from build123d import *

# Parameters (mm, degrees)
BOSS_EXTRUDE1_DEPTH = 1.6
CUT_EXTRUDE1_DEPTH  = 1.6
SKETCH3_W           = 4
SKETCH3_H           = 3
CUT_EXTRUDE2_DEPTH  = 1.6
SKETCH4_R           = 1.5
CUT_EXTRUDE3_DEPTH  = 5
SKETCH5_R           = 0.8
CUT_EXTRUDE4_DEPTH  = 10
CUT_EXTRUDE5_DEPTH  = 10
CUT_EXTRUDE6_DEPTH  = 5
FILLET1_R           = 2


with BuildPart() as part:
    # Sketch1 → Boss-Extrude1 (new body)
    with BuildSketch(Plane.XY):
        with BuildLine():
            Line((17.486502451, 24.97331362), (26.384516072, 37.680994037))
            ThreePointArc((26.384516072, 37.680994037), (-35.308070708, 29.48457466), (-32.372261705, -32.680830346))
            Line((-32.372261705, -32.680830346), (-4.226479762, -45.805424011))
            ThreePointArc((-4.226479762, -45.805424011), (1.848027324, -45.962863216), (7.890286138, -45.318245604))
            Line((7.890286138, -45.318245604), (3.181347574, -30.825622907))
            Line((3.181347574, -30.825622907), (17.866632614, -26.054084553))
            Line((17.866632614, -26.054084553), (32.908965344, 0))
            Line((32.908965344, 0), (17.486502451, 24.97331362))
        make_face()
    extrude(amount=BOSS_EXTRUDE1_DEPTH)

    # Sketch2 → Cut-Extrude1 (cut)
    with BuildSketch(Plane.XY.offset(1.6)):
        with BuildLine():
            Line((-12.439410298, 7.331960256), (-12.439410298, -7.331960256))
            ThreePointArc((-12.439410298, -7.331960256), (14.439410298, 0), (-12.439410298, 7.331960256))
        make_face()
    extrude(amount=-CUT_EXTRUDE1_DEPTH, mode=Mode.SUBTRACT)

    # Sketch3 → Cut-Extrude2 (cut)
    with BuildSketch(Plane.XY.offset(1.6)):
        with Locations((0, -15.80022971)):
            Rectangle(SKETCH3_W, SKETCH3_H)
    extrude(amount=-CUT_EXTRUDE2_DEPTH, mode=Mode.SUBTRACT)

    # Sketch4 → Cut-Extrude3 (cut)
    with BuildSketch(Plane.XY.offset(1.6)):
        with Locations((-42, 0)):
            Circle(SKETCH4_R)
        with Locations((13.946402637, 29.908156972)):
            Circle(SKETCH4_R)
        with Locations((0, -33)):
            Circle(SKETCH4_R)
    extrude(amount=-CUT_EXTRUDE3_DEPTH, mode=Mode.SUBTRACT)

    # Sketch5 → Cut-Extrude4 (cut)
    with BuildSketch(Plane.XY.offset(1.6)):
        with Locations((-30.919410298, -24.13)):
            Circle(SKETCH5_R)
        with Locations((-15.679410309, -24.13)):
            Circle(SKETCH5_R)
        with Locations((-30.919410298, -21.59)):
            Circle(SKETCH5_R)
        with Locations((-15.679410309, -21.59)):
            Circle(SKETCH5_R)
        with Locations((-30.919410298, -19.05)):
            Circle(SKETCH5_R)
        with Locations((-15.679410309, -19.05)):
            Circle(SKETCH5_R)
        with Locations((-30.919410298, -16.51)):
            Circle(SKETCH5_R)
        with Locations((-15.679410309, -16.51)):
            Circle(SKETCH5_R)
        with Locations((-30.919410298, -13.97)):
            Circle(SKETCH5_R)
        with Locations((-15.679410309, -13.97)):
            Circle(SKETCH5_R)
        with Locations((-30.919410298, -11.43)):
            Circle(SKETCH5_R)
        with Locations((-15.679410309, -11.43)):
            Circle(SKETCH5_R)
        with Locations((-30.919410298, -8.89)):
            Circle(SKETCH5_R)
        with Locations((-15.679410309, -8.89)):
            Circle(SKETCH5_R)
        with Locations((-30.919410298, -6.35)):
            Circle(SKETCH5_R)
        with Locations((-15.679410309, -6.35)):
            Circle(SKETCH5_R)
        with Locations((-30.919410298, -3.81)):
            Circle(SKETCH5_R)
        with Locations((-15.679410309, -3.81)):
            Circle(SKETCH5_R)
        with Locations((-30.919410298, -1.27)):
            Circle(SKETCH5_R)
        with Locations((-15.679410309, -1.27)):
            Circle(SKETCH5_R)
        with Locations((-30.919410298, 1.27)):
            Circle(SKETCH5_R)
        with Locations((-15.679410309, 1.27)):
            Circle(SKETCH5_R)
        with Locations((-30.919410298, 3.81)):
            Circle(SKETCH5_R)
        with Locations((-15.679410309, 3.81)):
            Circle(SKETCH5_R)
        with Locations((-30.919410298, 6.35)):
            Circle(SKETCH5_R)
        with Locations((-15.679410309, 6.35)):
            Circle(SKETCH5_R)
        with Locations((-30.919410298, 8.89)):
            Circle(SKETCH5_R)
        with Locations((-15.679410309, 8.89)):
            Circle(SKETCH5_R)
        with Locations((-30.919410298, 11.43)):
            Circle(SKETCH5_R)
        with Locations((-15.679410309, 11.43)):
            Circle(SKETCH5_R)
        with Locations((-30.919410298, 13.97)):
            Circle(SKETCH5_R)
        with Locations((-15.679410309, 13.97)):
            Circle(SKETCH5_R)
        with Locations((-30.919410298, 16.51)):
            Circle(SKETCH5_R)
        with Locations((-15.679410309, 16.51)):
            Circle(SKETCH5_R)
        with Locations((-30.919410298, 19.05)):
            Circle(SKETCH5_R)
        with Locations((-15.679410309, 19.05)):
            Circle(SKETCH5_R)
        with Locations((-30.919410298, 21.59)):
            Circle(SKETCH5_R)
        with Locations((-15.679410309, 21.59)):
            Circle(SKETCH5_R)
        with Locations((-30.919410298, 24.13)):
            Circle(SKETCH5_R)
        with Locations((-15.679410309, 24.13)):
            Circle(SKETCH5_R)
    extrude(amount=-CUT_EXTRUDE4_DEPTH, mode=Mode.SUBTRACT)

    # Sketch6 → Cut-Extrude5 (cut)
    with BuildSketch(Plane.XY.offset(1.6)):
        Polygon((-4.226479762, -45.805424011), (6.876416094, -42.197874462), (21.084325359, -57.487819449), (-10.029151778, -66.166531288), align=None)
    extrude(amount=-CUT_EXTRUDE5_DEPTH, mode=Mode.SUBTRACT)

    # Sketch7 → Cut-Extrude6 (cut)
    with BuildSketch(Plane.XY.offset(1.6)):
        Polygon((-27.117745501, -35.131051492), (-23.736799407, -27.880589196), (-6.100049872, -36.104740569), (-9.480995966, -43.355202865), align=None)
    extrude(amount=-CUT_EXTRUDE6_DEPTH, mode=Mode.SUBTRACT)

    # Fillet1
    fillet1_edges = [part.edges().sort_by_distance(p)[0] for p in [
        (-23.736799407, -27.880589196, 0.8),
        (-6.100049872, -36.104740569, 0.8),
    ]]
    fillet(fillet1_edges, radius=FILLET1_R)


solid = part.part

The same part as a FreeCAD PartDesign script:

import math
import FreeCAD as App
import Part
import Sketcher
from FreeCAD import Vector
Q = App.Units.Quantity


def edges_at(feature, points):
    """Names of the edges that pass closest to the given points."""
    edges = feature.Shape.Edges
    near = lambda p: min(range(len(edges)), key=lambda i: edges[i].distToShape(Part.Vertex(*p))[0])
    return sorted({f"Edge{near(p) + 1}" for p in points})


def add_polygon(sketch, points):
    """Adds a closed chain of lines whose ends are joined by coincident constraints."""
    first, n = sketch.GeometryCount, len(points)
    for a, b in zip(points, points[1:] + points[:1]):
        sketch.addGeometry(Part.LineSegment(App.Vector(*a, 0), App.Vector(*b, 0)), False)
    for i in range(n):
        sketch.addConstraint(Sketcher.Constraint("Coincident", first + i, 2, first + (i + 1) % n, 1))

doc = App.newDocument("Part")
body = doc.addObject("PartDesign::Body", "Body")

sketch1 = body.newObject("Sketcher::SketchObject", "Sketch")
sketch1.AttachmentSupport = (doc.getObject("XY_Plane"), [""])
sketch1.MapMode = "FlatFace"
sketch1.addGeometry([
    Part.LineSegment(Vector(17, 25, 0), Vector(26, 38, 0)),
    Part.ArcOfCircle(Part.Circle(Vector(0, 0, 0), Vector(0, 0, 1), 46), math.radians(55), math.radians(225)),
    Part.LineSegment(Vector(-32, -33, 0), Vector(-4, -46, 0)),
    Part.ArcOfCircle(Part.Circle(Vector(0, 0, 0), Vector(0, 0, 1), 46), math.radians(-95.27), math.radians(-80.12)),
    Part.LineSegment(Vector(8, -45, 0), Vector(3, -31, 0)),
    Part.LineSegment(Vector(3, -31, 0), Vector(18, -26, 0)),
    Part.LineSegment(Vector(18, -26, 0), Vector(33, 0, 0)),
    Part.LineSegment(Vector(33, 0, 0), Vector(17, 25, 0)),
], False)
sketch1.addConstraint([
    Sketcher.Constraint("Coincident", 0, 2, 1, 1),
    Sketcher.Constraint("Coincident", 1, 2, 2, 1),
    Sketcher.Constraint("Coincident", 2, 2, 3, 1),
    Sketcher.Constraint("Coincident", 3, 2, 4, 1),
    Sketcher.Constraint("Coincident", 4, 2, 5, 1),
    Sketcher.Constraint("Coincident", 5, 2, 6, 1),
    Sketcher.Constraint("Coincident", 6, 2, 7, 1),
    Sketcher.Constraint("Coincident", 7, 2, 0, 1),
    Sketcher.Constraint("Coincident", 1, 3, -1, 1),
    Sketcher.Constraint("Coincident", 3, 3, -1, 1),
    Sketcher.Constraint("Equal", 1, 3),
    Sketcher.Constraint("PointOnObject", 6, 2, -1),
    Sketcher.Constraint("Perpendicular", 4, 5),
    Sketcher.Constraint("Radius", 1, Q("46 mm")),
    Sketcher.Constraint("Angle", 0, Q("55 deg")),
    Sketcher.Constraint("Angle", 2, Q("-25 deg")),
    Sketcher.Constraint("Angle", 4, Q("108 deg")),
    Sketcher.Constraint("Angle", 6, Q("60 deg")),
    Sketcher.Constraint("DistanceY", 2, 2, 4, 2, Q("14.979801 mm")),
    Sketcher.Constraint("DistanceY", 5, 2, 7, 2, Q("51.027398 mm")),
    Sketcher.Constraint("Distance", 7, Q("29.35164 mm")),
    Sketcher.Constraint("DistanceX", 1, 2, -1, 1, Q("32.372262 mm")),
    Sketcher.Constraint("DistanceY", 2, 2, 0, 2, Q("83.486418 mm")),
    Sketcher.Constraint("DistanceY", 2, 2, 3, 2, Q("0.487178 mm")),
])
pad1 = body.newObject("PartDesign::Pad", "Pad")
pad1.Profile = sketch1
pad1.Length = 1.6

sketch2 = body.newObject("Sketcher::SketchObject", "Sketch001")
sketch2.AttachmentSupport = (doc.getObject("XY_Plane"), [""])
sketch2.MapMode = "FlatFace"
sketch2.AttachmentOffset = App.Placement(Vector(0, 0, 1.6), App.Rotation())
sketch2.addGeometry([
    Part.LineSegment(Vector(-12, 7, 0), Vector(-12, -7, 0)),
    Part.ArcOfCircle(Part.Circle(Vector(0, 0, 0), Vector(0, 0, 1), 14), math.radians(-149), math.radians(149)),
], False)
sketch2.addConstraint([
    Sketcher.Constraint("Coincident", 0, 1, 1, 2),
    Sketcher.Constraint("Coincident", 1, 1, 0, 2),
    Sketcher.Constraint("Vertical", 0),
    Sketcher.Constraint("Coincident", 1, 3, -1, 1),
    Sketcher.Constraint("Radius", 1, Q("14.43941 mm")),
    Sketcher.Constraint("DistanceY", 0, 2, 0, 1, Q("14.663921 mm")),
])
pocket1 = body.newObject("PartDesign::Pocket", "Pocket")
pocket1.Profile = sketch2
pocket1.Length = 1.6

sketch3 = body.newObject("Sketcher::SketchObject", "Sketch002")
sketch3.AttachmentSupport = (doc.getObject("XY_Plane"), [""])
sketch3.MapMode = "FlatFace"
sketch3.AttachmentOffset = App.Placement(Vector(0, 0, 1.6), App.Rotation())
add_polygon(sketch3, [(-2, -14.3), (-2, -17.3), (2, -17.3), (2, -14.3)])
sketch3.addConstraint([
    Sketcher.Constraint("Vertical", 0),
    Sketcher.Constraint("Horizontal", 1),
    Sketcher.Constraint("Vertical", 2),
    Sketcher.Constraint("Horizontal", 3),
    Sketcher.Constraint("DistanceX", 1, 1, 1, 2, Q("4 mm")),
    Sketcher.Constraint("DistanceY", 0, 2, 0, 1, Q("3 mm")),
    Sketcher.Constraint("DistanceX", 0, 2, -1, 1, Q("2 mm")),
    Sketcher.Constraint("DistanceY", 0, 2, -1, 1, Q("17.30023 mm")),
])
pocket2 = body.newObject("PartDesign::Pocket", "Pocket001")
pocket2.Profile = sketch3
pocket2.Length = 1.6

sketch4 = body.newObject("Sketcher::SketchObject", "Sketch003")
sketch4.AttachmentSupport = (doc.getObject("XY_Plane"), [""])
sketch4.MapMode = "FlatFace"
sketch4.AttachmentOffset = App.Placement(Vector(0, 0, 1.6), App.Rotation())
sketch4.addGeometry([
    Part.Circle(Vector(-42, 0, 0), Vector(0, 0, 1), 1.5),
    Part.Circle(Vector(13.9, 29.9, 0), Vector(0, 0, 1), 1.5),
    Part.Circle(Vector(0, -33, 0), Vector(0, 0, 1), 1.5),
], False)
sketch4.addConstraint([
    Sketcher.Constraint("Equal", 0, 1),
    Sketcher.Constraint("Equal", 1, 2),
    Sketcher.Constraint("PointOnObject", 0, 3, -1),
    Sketcher.Constraint("PointOnObject", 2, 3, -2),
    Sketcher.Constraint("Diameter", 0, Q("3 mm")),
    Sketcher.Constraint("DistanceX", 0, 3, -1, 1, Q("42 mm")),
    Sketcher.Constraint("DistanceY", 2, 3, -1, 1, Q("33 mm")),
    Sketcher.Constraint("DistanceX", -1, 1, 1, 3, Q("13.946403 mm")),
    Sketcher.Constraint("DistanceY", -1, 1, 1, 3, Q("29.908157 mm")),
])
pocket3 = body.newObject("PartDesign::Pocket", "Pocket002")
pocket3.Profile = sketch4
pocket3.Length = 5

sketch5 = body.newObject("Sketcher::SketchObject", "Sketch004")
sketch5.AttachmentSupport = (doc.getObject("XY_Plane"), [""])
sketch5.MapMode = "FlatFace"
sketch5.AttachmentOffset = App.Placement(Vector(0, 0, 1.6), App.Rotation())
sketch5.addGeometry([
    Part.Circle(Vector(-30.9, -24.1, 0), Vector(0, 0, 1), 0.8),
    Part.Circle(Vector(-15.7, -24.1, 0), Vector(0, 0, 1), 0.8),
    Part.Circle(Vector(-30.9, -21.6, 0), Vector(0, 0, 1), 0.8),
    Part.Circle(Vector(-15.7, -21.6, 0), Vector(0, 0, 1), 0.8),
    Part.Circle(Vector(-30.9, -19.1, 0), Vector(0, 0, 1), 0.8),
    Part.Circle(Vector(-15.7, -19.1, 0), Vector(0, 0, 1), 0.8),
    Part.Circle(Vector(-30.9, -16.5, 0), Vector(0, 0, 1), 0.8),
    Part.Circle(Vector(-15.7, -16.5, 0), Vector(0, 0, 1), 0.8),
    Part.Circle(Vector(-30.9, -14, 0), Vector(0, 0, 1), 0.8),
    Part.Circle(Vector(-15.7, -14, 0), Vector(0, 0, 1), 0.8),
    Part.Circle(Vector(-30.9, -11.4, 0), Vector(0, 0, 1), 0.8),
    Part.Circle(Vector(-15.7, -11.4, 0), Vector(0, 0, 1), 0.8),
    Part.Circle(Vector(-30.9, -8.9, 0), Vector(0, 0, 1), 0.8),
    Part.Circle(Vector(-15.7, -8.9, 0), Vector(0, 0, 1), 0.8),
    Part.Circle(Vector(-30.9, -6.3, 0), Vector(0, 0, 1), 0.8),
    Part.Circle(Vector(-15.7, -6.3, 0), Vector(0, 0, 1), 0.8),
    Part.Circle(Vector(-30.9, -3.8, 0), Vector(0, 0, 1), 0.8),
    Part.Circle(Vector(-15.7, -3.8, 0), Vector(0, 0, 1), 0.8),
    Part.Circle(Vector(-30.9, -1.3, 0), Vector(0, 0, 1), 0.8),
    Part.Circle(Vector(-15.7, -1.3, 0), Vector(0, 0, 1), 0.8),
    Part.Circle(Vector(-30.9, 1.3, 0), Vector(0, 0, 1), 0.8),
    Part.Circle(Vector(-15.7, 1.3, 0), Vector(0, 0, 1), 0.8),
    Part.Circle(Vector(-30.9, 3.8, 0), Vector(0, 0, 1), 0.8),
    Part.Circle(Vector(-15.7, 3.8, 0), Vector(0, 0, 1), 0.8),
    Part.Circle(Vector(-30.9, 6.3, 0), Vector(0, 0, 1), 0.8),
    Part.Circle(Vector(-15.7, 6.3, 0), Vector(0, 0, 1), 0.8),
    Part.Circle(Vector(-30.9, 8.9, 0), Vector(0, 0, 1), 0.8),
    Part.Circle(Vector(-15.7, 8.9, 0), Vector(0, 0, 1), 0.8),
    Part.Circle(Vector(-30.9, 11.4, 0), Vector(0, 0, 1), 0.8),
    Part.Circle(Vector(-15.7, 11.4, 0), Vector(0, 0, 1), 0.8),
    Part.Circle(Vector(-30.9, 14, 0), Vector(0, 0, 1), 0.8),
    Part.Circle(Vector(-15.7, 14, 0), Vector(0, 0, 1), 0.8),
    Part.Circle(Vector(-30.9, 16.5, 0), Vector(0, 0, 1), 0.8),
    Part.Circle(Vector(-15.7, 16.5, 0), Vector(0, 0, 1), 0.8),
    Part.Circle(Vector(-30.9, 19.1, 0), Vector(0, 0, 1), 0.8),
    Part.Circle(Vector(-15.7, 19.1, 0), Vector(0, 0, 1), 0.8),
    Part.Circle(Vector(-30.9, 21.6, 0), Vector(0, 0, 1), 0.8),
    Part.Circle(Vector(-15.7, 21.6, 0), Vector(0, 0, 1), 0.8),
    Part.Circle(Vector(-30.9, 24.1, 0), Vector(0, 0, 1), 0.8),
    Part.Circle(Vector(-15.7, 24.1, 0), Vector(0, 0, 1), 0.8),
], False)
sketch5.addConstraint([
    Sketcher.Constraint("Equal", 0, 1),
    Sketcher.Constraint("Equal", 1, 2),
    Sketcher.Constraint("Equal", 2, 3),
    Sketcher.Constraint("Equal", 3, 4),
    Sketcher.Constraint("Equal", 4, 5),
    Sketcher.Constraint("Equal", 5, 6),
    Sketcher.Constraint("Equal", 6, 7),
    Sketcher.Constraint("Equal", 7, 8),
    Sketcher.Constraint("Equal", 8, 9),
    Sketcher.Constraint("Equal", 9, 10),
    Sketcher.Constraint("Equal", 10, 11),
    Sketcher.Constraint("Equal", 11, 12),
    Sketcher.Constraint("Equal", 12, 13),
    Sketcher.Constraint("Equal", 13, 14),
    Sketcher.Constraint("Equal", 14, 15),
    Sketcher.Constraint("Equal", 15, 16),
    Sketcher.Constraint("Equal", 16, 17),
    Sketcher.Constraint("Equal", 17, 18),
    Sketcher.Constraint("Equal", 18, 19),
    Sketcher.Constraint("Equal", 19, 20),
    Sketcher.Constraint("Equal", 20, 21),
    Sketcher.Constraint("Equal", 21, 22),
    Sketcher.Constraint("Equal", 22, 23),
    Sketcher.Constraint("Equal", 23, 24),
    Sketcher.Constraint("Equal", 24, 25),
    Sketcher.Constraint("Equal", 25, 26),
    Sketcher.Constraint("Equal", 26, 27),
    Sketcher.Constraint("Equal", 27, 28),
    Sketcher.Constraint("Equal", 28, 29),
    Sketcher.Constraint("Equal", 29, 30),
    Sketcher.Constraint("Equal", 30, 31),
    Sketcher.Constraint("Equal", 31, 32),
    Sketcher.Constraint("Equal", 32, 33),
    Sketcher.Constraint("Equal", 33, 34),
    Sketcher.Constraint("Equal", 34, 35),
    Sketcher.Constraint("Equal", 35, 36),
    Sketcher.Constraint("Equal", 36, 37),
    Sketcher.Constraint("Equal", 37, 38),
    Sketcher.Constraint("Equal", 38, 39),
    Sketcher.Constraint("Symmetric", 18, 3, 20, 3, -1),
    Sketcher.Constraint("Symmetric", 19, 3, 21, 3, -1),
    Sketcher.Constraint("Symmetric", 16, 3, 22, 3, -1),
    Sketcher.Constraint("Symmetric", 17, 3, 23, 3, -1),
    Sketcher.Constraint("Symmetric", 14, 3, 24, 3, -1),
    Sketcher.Constraint("Symmetric", 15, 3, 25, 3, -1),
    Sketcher.Constraint("Symmetric", 12, 3, 26, 3, -1),
    Sketcher.Constraint("Symmetric", 13, 3, 27, 3, -1),
    Sketcher.Constraint("Symmetric", 10, 3, 28, 3, -1),
    Sketcher.Constraint("Symmetric", 11, 3, 29, 3, -1),
    Sketcher.Constraint("Symmetric", 8, 3, 30, 3, -1),
    Sketcher.Constraint("Symmetric", 9, 3, 31, 3, -1),
    Sketcher.Constraint("Symmetric", 6, 3, 32, 3, -1),
    Sketcher.Constraint("Symmetric", 7, 3, 33, 3, -1),
    Sketcher.Constraint("Symmetric", 4, 3, 34, 3, -1),
    Sketcher.Constraint("Symmetric", 5, 3, 35, 3, -1),
    Sketcher.Constraint("Symmetric", 2, 3, 36, 3, -1),
    Sketcher.Constraint("Symmetric", 3, 3, 37, 3, -1),
    Sketcher.Constraint("Symmetric", 0, 3, 38, 3, -1),
    Sketcher.Constraint("Symmetric", 1, 3, 39, 3, -1),
    Sketcher.Constraint("Horizontal", 0, 3, 1, 3),
    Sketcher.Constraint("Horizontal", 2, 3, 3, 3),
    Sketcher.Constraint("Horizontal", 4, 3, 5, 3),
    Sketcher.Constraint("Horizontal", 6, 3, 7, 3),
    Sketcher.Constraint("Horizontal", 8, 3, 9, 3),
    Sketcher.Constraint("Horizontal", 10, 3, 11, 3),
    Sketcher.Constraint("Horizontal", 12, 3, 13, 3),
    Sketcher.Constraint("Horizontal", 14, 3, 15, 3),
    Sketcher.Constraint("Horizontal", 16, 3, 17, 3),
    Sketcher.Constraint("Horizontal", 18, 3, 19, 3),
    Sketcher.Constraint("Vertical", 0, 3, 2, 3),
    Sketcher.Constraint("Vertical", 1, 3, 3, 3),
    Sketcher.Constraint("Vertical", 2, 3, 4, 3),
    Sketcher.Constraint("Vertical", 3, 3, 5, 3),
    Sketcher.Constraint("Vertical", 4, 3, 6, 3),
    Sketcher.Constraint("Vertical", 5, 3, 7, 3),
    Sketcher.Constraint("Vertical", 6, 3, 8, 3),
    Sketcher.Constraint("Vertical", 7, 3, 9, 3),
    Sketcher.Constraint("Vertical", 8, 3, 10, 3),
    Sketcher.Constraint("Vertical", 9, 3, 11, 3),
    Sketcher.Constraint("Vertical", 10, 3, 12, 3),
    Sketcher.Constraint("Vertical", 11, 3, 13, 3),
    Sketcher.Constraint("Vertical", 12, 3, 14, 3),
    Sketcher.Constraint("Vertical", 13, 3, 15, 3),
    Sketcher.Constraint("Vertical", 14, 3, 16, 3),
    Sketcher.Constraint("Vertical", 15, 3, 17, 3),
    Sketcher.Constraint("Vertical", 16, 3, 18, 3),
    Sketcher.Constraint("Vertical", 17, 3, 19, 3),
    Sketcher.Constraint("Diameter", 0, Q("1.6 mm")),
    Sketcher.Constraint("DistanceY", 0, 3, 10, 3, Q("12.7 mm")),
    Sketcher.Constraint("DistanceY", 2, 3, 12, 3, Q("12.7 mm")),
    Sketcher.Constraint("DistanceY", 4, 3, 14, 3, Q("12.7 mm")),
    Sketcher.Constraint("DistanceY", 6, 3, 16, 3, Q("12.7 mm")),
    Sketcher.Constraint("DistanceY", 8, 3, 18, 3, Q("12.7 mm")),
    Sketcher.Constraint("DistanceY", 10, 3, 20, 3, Q("12.7 mm")),
    Sketcher.Constraint("DistanceY", 12, 3, 22, 3, Q("12.7 mm")),
    Sketcher.Constraint("DistanceY", 14, 3, 24, 3, Q("12.7 mm")),
    Sketcher.Constraint("DistanceY", 0, 3, -1, 1, Q("24.13 mm")),
    Sketcher.Constraint("DistanceY", 2, 3, -1, 1, Q("21.59 mm")),
    Sketcher.Constraint("DistanceX", 0, 3, 1, 3, Q("15.24 mm")),
    Sketcher.Constraint("DistanceX", 0, 3, -1, 1, Q("30.91941 mm")),
])
pocket4 = body.newObject("PartDesign::Pocket", "Pocket003")
pocket4.Profile = sketch5
pocket4.Length = 10

sketch6 = body.newObject("Sketcher::SketchObject", "Sketch005")
sketch6.AttachmentSupport = (doc.getObject("XY_Plane"), [""])
sketch6.MapMode = "FlatFace"
sketch6.AttachmentOffset = App.Placement(Vector(0, 0, 1.6), App.Rotation())
add_polygon(sketch6, [(7, -42), (-4, -46), (-10, -66), (21, -57)])
sketch6.addConstraint([
    Sketcher.Constraint("Angle", 0, Q("-162 deg")),
    Sketcher.Constraint("Distance", 3, Q("20.872161 mm")),
    Sketcher.Constraint("DistanceX", 0, 2, -1, 1, Q("4.22648 mm")),
    Sketcher.Constraint("DistanceX", 1, 2, -1, 1, Q("10.029152 mm")),
    Sketcher.Constraint("DistanceY", 1, 2, -1, 1, Q("66.166531 mm")),
    Sketcher.Constraint("DistanceY", 2, 2, -1, 1, Q("57.487819 mm")),
    Sketcher.Constraint("DistanceY", 0, 2, 3, 2, Q("3.60755 mm")),
    Sketcher.Constraint("DistanceX", 3, 2, 2, 2, Q("14.207909 mm")),
])
pocket5 = body.newObject("PartDesign::Pocket", "Pocket004")
pocket5.Profile = sketch6
pocket5.Length = 10

sketch7 = body.newObject("Sketcher::SketchObject", "Sketch006")
sketch7.AttachmentSupport = (doc.getObject("XY_Plane"), [""])
sketch7.MapMode = "FlatFace"
sketch7.AttachmentOffset = App.Placement(Vector(0, 0, 1.6), App.Rotation())
add_polygon(sketch7, [(-24, -28), (-27, -35), (-9, -43), (-6, -36)])
sketch7.addConstraint([
    Sketcher.Constraint("Perpendicular", 0, 1),
    Sketcher.Constraint("Perpendicular", 1, 2),
    Sketcher.Constraint("Perpendicular", 2, 3),
    Sketcher.Constraint("Angle", 0, Q("-115 deg")),
    Sketcher.Constraint("Distance", 0, Q("8 mm")),
    Sketcher.Constraint("Distance", 1, Q("19.46 mm")),
    Sketcher.Constraint("DistanceX", 3, 2, -1, 1, Q("23.736799 mm")),
    Sketcher.Constraint("DistanceY", 0, 2, -1, 1, Q("35.131051 mm")),
])
pocket6 = body.newObject("PartDesign::Pocket", "Pocket005")
pocket6.Profile = sketch7
pocket6.Length = 5
doc.recompute()

fillet = body.newObject("PartDesign::Fillet", "Fillet")
fillet.Base = (pocket6, edges_at(pocket6, [(-23.737, -27.881, 0.8), (-6.1, -36.105, 0.8)]))
fillet.Radius = 2

doc.recompute()
